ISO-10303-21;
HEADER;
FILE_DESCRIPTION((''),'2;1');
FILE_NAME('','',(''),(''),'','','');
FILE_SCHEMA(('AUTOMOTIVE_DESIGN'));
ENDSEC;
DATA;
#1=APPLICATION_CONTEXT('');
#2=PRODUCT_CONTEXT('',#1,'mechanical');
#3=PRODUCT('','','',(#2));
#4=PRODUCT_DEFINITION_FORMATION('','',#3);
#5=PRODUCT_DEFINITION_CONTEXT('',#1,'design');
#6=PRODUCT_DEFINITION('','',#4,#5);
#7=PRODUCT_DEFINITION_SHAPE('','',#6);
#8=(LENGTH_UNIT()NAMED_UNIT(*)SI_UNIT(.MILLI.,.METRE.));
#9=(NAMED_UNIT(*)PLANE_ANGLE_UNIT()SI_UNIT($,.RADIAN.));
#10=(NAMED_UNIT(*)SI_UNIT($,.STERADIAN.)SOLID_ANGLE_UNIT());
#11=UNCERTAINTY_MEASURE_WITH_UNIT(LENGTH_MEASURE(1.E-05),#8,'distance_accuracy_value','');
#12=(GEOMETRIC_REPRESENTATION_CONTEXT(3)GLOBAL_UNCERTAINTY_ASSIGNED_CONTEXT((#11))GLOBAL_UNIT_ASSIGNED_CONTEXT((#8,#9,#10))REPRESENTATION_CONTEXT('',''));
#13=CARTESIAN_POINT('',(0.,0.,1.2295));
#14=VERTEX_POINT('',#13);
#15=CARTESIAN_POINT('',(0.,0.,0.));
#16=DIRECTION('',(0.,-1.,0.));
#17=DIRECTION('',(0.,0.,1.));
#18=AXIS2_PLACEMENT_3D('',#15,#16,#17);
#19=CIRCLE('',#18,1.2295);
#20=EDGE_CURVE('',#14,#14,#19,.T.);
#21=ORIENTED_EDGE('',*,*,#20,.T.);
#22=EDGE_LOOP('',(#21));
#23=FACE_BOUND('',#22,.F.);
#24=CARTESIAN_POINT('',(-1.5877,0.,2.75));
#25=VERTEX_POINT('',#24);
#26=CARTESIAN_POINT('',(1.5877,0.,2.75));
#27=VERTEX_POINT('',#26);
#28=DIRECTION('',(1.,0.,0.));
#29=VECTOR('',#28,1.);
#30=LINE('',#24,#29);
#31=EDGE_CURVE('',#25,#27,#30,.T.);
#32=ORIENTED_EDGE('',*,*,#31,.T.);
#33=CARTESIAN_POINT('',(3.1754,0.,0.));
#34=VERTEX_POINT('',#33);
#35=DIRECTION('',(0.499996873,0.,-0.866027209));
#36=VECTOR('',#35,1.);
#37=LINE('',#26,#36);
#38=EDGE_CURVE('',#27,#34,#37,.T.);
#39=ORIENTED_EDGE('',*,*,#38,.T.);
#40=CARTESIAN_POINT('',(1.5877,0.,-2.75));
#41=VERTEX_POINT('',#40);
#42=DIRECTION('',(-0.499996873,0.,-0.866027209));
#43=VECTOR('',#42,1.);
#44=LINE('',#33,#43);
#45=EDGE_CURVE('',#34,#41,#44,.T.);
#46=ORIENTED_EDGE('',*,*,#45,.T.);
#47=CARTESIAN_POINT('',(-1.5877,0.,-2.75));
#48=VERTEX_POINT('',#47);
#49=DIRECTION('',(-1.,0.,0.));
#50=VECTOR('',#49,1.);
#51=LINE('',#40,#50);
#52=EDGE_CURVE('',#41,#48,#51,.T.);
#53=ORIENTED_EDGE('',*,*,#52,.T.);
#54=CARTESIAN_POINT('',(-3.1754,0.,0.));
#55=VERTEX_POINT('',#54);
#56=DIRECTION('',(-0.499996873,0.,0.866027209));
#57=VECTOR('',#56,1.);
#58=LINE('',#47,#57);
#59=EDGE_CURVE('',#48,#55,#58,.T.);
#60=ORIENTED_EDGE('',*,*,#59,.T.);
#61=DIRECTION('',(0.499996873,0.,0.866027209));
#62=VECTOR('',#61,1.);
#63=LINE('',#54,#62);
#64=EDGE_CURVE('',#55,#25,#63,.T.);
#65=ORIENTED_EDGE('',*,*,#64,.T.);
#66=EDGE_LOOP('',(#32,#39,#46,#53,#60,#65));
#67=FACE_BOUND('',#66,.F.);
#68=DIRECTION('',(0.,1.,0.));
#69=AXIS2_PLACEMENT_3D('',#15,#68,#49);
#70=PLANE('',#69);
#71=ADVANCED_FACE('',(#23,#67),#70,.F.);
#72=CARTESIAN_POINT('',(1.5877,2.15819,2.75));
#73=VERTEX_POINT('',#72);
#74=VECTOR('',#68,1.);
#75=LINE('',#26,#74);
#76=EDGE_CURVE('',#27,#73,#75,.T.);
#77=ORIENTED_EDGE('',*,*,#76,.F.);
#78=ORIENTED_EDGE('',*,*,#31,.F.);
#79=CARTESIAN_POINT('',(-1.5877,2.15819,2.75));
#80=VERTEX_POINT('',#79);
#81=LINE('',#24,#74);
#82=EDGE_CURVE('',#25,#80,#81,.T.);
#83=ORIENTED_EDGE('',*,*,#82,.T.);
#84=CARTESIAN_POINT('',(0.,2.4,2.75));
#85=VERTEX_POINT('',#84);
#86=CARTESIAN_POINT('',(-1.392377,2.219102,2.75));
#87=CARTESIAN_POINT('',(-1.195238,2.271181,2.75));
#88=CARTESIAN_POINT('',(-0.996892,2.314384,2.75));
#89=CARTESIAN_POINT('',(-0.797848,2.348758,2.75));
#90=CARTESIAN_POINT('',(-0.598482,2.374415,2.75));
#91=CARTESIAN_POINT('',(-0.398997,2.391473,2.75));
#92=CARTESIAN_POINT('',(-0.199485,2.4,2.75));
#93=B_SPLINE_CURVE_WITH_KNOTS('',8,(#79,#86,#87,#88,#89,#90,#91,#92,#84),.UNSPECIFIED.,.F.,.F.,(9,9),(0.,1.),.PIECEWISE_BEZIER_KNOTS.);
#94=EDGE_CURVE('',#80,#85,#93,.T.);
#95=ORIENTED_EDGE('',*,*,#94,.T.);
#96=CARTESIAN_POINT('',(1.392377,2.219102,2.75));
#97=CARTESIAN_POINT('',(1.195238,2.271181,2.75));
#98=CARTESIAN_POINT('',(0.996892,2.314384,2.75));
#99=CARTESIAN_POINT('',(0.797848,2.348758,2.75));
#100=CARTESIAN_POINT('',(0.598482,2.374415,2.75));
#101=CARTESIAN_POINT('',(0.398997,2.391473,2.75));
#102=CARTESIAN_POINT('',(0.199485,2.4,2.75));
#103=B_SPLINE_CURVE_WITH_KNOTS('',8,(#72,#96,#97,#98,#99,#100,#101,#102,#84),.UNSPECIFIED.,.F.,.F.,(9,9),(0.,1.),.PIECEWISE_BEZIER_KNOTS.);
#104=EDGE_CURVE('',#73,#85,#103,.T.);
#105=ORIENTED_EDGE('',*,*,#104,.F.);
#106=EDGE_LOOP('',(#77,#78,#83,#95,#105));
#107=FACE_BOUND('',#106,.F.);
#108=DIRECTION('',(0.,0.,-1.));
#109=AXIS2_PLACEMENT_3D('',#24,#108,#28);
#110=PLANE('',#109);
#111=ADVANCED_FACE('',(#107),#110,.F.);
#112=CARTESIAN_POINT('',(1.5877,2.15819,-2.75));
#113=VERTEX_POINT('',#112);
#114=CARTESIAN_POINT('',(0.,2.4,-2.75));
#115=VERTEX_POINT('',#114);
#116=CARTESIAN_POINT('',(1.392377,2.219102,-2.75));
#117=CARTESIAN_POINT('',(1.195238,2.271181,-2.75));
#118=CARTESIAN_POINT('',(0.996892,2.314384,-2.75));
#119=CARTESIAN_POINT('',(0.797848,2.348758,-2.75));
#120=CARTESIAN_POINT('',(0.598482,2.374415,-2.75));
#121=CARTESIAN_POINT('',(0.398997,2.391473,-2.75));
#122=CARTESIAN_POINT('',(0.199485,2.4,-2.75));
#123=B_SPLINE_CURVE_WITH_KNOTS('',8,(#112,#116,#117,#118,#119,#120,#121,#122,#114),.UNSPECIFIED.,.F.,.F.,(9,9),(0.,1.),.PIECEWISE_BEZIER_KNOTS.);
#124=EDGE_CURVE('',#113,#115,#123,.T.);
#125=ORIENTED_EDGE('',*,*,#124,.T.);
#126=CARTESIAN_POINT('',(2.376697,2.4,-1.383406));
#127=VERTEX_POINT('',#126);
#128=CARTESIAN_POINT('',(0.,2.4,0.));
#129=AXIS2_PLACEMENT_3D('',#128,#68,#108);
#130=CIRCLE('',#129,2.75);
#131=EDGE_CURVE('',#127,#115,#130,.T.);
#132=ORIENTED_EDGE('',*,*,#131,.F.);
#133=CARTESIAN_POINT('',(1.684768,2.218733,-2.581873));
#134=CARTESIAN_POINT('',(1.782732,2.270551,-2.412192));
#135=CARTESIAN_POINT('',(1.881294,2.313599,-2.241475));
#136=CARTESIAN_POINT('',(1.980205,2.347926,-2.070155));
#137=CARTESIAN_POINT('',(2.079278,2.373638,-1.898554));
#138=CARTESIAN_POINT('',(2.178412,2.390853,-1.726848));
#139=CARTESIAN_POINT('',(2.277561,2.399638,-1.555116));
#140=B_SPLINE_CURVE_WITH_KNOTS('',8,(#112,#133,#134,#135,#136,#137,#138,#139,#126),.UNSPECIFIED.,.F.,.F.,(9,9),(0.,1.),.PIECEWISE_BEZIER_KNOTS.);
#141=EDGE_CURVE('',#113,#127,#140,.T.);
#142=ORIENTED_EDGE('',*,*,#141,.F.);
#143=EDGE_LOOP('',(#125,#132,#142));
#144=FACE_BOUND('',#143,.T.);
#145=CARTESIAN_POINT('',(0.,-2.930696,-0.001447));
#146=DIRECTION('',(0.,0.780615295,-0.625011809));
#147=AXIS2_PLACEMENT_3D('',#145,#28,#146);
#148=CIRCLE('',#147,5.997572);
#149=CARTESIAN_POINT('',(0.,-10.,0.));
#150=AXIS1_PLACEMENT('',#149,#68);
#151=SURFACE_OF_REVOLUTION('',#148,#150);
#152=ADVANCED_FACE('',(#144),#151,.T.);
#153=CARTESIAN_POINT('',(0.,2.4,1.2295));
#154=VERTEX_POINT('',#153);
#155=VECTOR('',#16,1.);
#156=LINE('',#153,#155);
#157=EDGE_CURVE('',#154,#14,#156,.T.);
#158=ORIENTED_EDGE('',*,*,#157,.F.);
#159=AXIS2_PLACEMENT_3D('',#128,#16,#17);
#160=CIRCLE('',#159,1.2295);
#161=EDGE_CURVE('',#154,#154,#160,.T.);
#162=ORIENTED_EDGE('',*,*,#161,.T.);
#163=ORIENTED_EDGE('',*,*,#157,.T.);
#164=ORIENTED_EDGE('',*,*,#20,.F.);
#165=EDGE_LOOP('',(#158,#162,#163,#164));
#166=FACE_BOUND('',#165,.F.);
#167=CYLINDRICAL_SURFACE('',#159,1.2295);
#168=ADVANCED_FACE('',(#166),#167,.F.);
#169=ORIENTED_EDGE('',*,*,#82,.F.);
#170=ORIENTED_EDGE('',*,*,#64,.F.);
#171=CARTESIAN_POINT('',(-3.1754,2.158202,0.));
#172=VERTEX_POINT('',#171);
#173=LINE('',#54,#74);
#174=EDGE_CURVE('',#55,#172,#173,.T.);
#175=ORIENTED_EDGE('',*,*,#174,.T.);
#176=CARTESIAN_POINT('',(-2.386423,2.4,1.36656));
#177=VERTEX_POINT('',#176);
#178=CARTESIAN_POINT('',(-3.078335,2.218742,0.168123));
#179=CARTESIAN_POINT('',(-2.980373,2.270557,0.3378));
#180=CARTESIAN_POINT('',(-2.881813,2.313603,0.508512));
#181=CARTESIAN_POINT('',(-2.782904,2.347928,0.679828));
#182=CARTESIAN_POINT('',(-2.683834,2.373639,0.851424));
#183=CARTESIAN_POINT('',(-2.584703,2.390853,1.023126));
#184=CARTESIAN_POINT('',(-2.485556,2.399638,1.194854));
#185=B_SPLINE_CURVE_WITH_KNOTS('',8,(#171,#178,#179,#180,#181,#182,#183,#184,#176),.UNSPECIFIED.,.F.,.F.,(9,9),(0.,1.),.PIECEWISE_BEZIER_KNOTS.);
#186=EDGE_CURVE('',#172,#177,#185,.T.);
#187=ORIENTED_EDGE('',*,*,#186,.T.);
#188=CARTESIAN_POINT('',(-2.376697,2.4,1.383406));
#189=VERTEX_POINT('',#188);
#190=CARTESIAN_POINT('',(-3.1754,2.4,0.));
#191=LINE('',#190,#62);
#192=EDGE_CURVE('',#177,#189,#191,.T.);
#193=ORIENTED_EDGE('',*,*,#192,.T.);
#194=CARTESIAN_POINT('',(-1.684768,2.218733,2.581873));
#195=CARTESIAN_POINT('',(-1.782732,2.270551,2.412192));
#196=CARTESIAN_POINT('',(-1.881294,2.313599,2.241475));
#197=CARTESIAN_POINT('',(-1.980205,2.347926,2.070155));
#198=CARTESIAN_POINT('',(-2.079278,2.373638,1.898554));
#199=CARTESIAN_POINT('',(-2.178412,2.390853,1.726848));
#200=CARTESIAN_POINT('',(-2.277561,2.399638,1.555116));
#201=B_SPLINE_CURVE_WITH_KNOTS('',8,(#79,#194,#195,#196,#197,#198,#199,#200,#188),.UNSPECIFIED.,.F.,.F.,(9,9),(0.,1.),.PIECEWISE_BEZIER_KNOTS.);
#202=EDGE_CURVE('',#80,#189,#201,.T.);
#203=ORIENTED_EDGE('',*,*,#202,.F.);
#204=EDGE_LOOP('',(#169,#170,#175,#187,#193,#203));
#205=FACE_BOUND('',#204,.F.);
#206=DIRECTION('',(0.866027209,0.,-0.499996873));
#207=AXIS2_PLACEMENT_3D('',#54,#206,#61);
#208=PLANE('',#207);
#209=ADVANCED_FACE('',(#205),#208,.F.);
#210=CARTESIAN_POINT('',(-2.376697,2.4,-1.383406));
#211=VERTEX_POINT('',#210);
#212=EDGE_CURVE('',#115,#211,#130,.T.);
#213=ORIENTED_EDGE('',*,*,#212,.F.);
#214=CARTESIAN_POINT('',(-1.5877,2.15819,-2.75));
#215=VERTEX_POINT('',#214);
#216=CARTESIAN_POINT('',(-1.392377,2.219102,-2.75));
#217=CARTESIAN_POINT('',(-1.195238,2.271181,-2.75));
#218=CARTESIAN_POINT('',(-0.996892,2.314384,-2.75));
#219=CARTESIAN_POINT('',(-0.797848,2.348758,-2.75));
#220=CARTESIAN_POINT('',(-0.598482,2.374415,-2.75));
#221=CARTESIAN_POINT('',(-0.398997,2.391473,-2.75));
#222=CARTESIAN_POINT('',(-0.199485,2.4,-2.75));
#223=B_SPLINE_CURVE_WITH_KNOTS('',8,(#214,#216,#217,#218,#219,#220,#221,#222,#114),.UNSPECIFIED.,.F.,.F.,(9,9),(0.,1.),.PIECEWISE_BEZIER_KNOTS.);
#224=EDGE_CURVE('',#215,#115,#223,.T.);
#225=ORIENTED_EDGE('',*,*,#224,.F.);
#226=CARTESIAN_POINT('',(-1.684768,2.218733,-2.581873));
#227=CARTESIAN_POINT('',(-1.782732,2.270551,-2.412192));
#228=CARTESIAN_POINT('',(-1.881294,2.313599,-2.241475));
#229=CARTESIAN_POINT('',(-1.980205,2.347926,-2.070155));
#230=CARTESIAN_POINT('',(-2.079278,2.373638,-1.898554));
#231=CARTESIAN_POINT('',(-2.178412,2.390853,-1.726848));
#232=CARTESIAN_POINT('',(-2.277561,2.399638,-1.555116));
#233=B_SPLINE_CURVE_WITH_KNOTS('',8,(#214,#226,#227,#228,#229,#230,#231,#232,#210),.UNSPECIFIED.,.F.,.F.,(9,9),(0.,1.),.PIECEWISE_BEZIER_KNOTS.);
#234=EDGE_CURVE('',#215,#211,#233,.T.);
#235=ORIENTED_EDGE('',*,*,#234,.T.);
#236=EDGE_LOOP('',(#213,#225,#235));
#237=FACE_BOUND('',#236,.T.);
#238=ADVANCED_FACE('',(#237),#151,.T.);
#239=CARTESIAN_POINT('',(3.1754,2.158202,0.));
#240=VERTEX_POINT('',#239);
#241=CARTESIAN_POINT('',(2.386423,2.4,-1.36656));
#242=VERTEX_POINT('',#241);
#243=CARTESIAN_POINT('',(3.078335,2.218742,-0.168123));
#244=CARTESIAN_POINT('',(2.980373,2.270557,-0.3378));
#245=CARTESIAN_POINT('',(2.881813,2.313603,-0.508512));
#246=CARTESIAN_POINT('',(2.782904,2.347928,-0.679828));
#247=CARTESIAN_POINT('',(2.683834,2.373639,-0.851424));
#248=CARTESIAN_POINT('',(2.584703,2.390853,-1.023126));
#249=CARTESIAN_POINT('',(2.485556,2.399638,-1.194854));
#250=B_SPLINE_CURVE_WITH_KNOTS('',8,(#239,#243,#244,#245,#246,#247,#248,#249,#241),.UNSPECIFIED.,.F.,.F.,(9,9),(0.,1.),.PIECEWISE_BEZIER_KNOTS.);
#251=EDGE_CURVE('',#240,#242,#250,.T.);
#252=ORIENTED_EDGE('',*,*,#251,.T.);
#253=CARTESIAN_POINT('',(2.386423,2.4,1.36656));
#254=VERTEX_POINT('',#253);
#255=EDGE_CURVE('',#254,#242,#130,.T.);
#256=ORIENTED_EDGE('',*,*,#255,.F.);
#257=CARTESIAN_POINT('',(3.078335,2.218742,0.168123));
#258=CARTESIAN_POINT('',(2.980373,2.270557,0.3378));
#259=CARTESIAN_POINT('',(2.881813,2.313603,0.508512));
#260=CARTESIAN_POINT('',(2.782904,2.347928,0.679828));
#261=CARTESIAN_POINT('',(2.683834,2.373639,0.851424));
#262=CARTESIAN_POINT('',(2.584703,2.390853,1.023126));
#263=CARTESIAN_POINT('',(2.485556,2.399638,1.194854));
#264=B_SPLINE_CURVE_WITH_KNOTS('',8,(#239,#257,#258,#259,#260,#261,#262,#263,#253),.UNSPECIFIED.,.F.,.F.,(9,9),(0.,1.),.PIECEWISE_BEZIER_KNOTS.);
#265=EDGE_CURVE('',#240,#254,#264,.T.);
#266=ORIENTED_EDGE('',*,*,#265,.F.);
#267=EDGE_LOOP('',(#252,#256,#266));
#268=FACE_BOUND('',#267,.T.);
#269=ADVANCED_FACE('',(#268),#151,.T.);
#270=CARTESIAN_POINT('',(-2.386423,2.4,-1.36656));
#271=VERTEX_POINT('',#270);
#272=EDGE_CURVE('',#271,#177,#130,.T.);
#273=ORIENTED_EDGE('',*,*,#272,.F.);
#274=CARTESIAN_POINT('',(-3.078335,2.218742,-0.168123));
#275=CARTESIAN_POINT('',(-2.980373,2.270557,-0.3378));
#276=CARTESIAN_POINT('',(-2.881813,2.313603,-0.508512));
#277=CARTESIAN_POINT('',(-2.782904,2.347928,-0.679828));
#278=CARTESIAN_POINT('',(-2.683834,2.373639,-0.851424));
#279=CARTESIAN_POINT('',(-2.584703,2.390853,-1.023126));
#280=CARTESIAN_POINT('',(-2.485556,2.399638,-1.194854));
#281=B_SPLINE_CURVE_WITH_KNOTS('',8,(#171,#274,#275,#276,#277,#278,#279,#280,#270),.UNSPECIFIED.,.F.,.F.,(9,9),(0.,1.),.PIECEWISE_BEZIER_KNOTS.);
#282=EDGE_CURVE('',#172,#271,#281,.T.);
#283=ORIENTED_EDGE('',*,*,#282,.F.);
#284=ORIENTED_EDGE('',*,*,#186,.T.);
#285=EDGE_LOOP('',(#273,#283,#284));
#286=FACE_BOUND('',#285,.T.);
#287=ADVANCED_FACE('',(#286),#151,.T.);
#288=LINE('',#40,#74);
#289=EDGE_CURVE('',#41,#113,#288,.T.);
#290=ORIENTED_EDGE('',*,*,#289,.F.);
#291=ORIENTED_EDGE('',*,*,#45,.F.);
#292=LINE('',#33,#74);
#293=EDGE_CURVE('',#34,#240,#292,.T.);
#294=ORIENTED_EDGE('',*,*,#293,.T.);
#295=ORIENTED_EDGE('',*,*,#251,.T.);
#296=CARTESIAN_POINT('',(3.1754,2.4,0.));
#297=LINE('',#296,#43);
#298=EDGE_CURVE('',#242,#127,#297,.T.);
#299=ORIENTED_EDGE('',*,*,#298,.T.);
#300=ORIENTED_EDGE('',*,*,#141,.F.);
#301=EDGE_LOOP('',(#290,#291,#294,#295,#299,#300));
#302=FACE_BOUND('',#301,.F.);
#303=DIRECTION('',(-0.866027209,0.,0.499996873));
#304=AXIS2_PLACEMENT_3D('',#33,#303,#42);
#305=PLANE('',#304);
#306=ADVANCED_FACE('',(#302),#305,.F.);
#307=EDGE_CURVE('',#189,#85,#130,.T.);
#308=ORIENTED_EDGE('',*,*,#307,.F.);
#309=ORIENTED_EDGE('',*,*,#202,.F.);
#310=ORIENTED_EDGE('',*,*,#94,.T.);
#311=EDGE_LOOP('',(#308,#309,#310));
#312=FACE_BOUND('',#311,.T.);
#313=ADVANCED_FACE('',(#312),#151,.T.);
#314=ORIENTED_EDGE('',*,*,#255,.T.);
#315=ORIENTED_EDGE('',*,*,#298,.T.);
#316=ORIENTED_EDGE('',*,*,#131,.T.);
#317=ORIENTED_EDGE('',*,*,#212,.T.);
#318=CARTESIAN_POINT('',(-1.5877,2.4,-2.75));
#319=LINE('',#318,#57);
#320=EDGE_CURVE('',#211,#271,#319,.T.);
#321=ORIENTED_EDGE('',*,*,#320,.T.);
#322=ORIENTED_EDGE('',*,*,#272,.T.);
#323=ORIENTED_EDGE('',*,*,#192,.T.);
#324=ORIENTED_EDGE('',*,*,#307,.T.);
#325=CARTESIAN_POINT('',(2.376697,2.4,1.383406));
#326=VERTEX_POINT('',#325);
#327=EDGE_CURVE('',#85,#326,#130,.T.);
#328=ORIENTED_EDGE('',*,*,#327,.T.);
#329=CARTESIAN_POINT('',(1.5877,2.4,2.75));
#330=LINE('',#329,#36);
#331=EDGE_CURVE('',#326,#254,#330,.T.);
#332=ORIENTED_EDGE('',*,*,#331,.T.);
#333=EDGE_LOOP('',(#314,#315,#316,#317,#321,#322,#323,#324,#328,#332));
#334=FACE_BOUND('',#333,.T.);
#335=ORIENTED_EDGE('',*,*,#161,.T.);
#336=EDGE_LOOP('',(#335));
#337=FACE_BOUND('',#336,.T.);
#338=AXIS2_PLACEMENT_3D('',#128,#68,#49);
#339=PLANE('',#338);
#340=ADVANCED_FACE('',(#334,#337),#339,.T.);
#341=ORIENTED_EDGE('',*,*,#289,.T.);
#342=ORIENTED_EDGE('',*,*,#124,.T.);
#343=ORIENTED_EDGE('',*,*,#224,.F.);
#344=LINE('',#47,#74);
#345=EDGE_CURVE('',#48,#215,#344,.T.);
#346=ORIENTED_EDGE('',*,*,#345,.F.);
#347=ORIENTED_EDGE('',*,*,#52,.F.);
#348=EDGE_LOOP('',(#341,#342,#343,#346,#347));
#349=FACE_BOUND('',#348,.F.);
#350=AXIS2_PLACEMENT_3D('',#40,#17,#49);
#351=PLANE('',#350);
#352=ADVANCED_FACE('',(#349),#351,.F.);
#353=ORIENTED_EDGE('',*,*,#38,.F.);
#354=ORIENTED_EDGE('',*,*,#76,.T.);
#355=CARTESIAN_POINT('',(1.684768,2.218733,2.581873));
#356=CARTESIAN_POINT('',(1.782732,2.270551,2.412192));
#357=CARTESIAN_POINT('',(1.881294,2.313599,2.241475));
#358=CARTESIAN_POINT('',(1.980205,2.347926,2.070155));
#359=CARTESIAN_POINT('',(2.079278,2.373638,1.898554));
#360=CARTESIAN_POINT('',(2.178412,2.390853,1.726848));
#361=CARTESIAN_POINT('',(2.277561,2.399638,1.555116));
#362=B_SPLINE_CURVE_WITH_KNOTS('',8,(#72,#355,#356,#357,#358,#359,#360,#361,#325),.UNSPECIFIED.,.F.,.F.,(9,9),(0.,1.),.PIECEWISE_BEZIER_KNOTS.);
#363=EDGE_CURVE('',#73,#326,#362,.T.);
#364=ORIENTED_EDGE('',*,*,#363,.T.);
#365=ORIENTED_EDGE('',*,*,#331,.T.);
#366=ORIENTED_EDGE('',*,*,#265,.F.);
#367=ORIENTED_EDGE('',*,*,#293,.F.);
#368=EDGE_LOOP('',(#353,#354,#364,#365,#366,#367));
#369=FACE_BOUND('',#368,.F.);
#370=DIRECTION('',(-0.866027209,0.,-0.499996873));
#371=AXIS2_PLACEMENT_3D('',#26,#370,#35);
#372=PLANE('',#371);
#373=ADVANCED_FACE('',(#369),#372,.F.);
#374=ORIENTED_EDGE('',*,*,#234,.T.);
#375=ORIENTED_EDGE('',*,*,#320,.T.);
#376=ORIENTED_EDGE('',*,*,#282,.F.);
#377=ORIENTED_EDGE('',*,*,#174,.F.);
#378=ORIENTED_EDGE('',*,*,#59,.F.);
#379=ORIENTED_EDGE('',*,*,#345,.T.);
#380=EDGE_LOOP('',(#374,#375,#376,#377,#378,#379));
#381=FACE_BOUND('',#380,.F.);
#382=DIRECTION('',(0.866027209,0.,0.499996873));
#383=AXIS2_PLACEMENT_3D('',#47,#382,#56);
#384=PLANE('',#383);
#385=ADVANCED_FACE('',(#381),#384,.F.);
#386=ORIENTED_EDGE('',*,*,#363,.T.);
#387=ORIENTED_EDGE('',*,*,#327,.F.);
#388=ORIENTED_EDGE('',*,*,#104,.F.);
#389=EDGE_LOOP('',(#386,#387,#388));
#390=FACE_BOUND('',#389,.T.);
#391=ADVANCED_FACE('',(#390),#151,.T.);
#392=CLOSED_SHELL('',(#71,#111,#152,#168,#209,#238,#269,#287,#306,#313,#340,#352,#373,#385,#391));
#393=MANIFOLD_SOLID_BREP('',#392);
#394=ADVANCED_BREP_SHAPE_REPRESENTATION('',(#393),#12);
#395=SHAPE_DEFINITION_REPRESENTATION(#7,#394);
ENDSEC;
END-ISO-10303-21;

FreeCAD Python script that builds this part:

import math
import FreeCAD as App
import Part
import Sketcher
Q = App.Units.Quantity


def add_polygon(sketch, points):
    """Adds a closed chain of lines whose ends are joined by coincident constraints."""
    first, n = sketch.GeometryCount, len(points)
    for a, b in zip(points, points[1:] + points[:1]):
        sketch.addGeometry(Part.LineSegment(App.Vector(*a, 0), App.Vector(*b, 0)), False)
    for i in range(n):
        sketch.addConstraint(Sketcher.Constraint("Coincident", first + i, 2, first + (i + 1) % n, 1))

doc = App.newDocument("Part")
body = doc.addObject("PartDesign::Body", "Body")

# Sketch on XZ plane
sketch1 = doc.addObject("Sketcher::SketchObject", "Sketch")
body.addObject(sketch1)
sketch1.AttachmentSupport = (doc.XZ_Plane, [""])
sketch1.MapMode = "FlatFace"
add_polygon(sketch1, [(-1.5877, -2.75), (-3.1754, 0), (-1.5877, 2.75), (1.5877, 2.75), (3.1754, 0), (1.5877, -2.75)])  # lines 0-5
sketch1.addConstraint([
    Sketcher.Constraint("Horizontal", 2),
    Sketcher.Constraint("Horizontal", 5),
    Sketcher.Constraint("Symmetric", 0, 2, 3, 2, -1, 1),
    Sketcher.Constraint("Symmetric", 1, 2, 4, 2, -1, 1),
    Sketcher.Constraint("PointOnObject", 0, 2, -1),
    Sketcher.Constraint("Parallel", 0, 3),
    Sketcher.Constraint("Vertical", 2, 2, 4, 2),
    Sketcher.Constraint("DistanceY", 4, 2, 2, 2, Q("5.5 mm")),
    Sketcher.Constraint("Angle", 0, Q("119.9998 deg")),
    Sketcher.Constraint("DistanceX", 2, 1, 2, 2, Q("3.1754 mm")),
])
pad1 = doc.addObject("PartDesign::Pad", "Pad")
body.addObject(pad1)
pad1.Profile = sketch1
pad1.Length = 2.4
pad1.Reversed = True

# Sketch on XZ plane
sketch2 = doc.addObject("Sketcher::SketchObject", "Sketch001")
body.addObject(sketch2)
sketch2.AttachmentSupport = (doc.XZ_Plane, [""])
sketch2.MapMode = "FlatFace"
sketch2.AttachmentOffset = App.Placement(App.Vector(0, 0, -2.4), App.Rotation())
sketch2.addGeometry(Part.Circle(App.Vector(0, 0, 0), App.Vector(0, 0, 1), 1.2295), False)
sketch2.addConstraint([
    Sketcher.Constraint("Coincident", 0, 3, -1, 1),
    Sketcher.Constraint("Diameter", 0, Q("2.459 mm")),
])
doc.recompute()
hole = doc.addObject("PartDesign::Hole", "Hole")
body.addObject(hole)
hole.Profile = sketch2
hole.ThreadType = "None"
hole.Diameter = 2.459
hole.DepthType = "ThroughAll"
hole.Reversed = True

# Sketch on YZ plane
sketch3 = doc.addObject("Sketcher::SketchObject", "Sketch002")
body.addObject(sketch3)
sketch3.AttachmentSupport = (doc.YZ_Plane, [""])
sketch3.MapMode = "FlatFace"
sketch3.addGeometry([
    Part.ArcOfCircle(Part.Circle(App.Vector(-2.930696, -0.001447, 0), App.Vector(0, 0, 1), 5.997572), math.radians(-38.683054), math.radians(-27.276024)),
    Part.LineSegment(App.Vector(1.7511, -3.75, 0), App.Vector(2.4, -3.75, 0)),
    Part.LineSegment(App.Vector(2.4, -3.75, 0), App.Vector(2.4, -2.75, 0)),
], False)
sketch3.addConstraint([
    Sketcher.Constraint("Coincident", 0, 1, 1, 1),
    Sketcher.Constraint("Coincident", 1, 2, 2, 1),
    Sketcher.Constraint("Coincident", 2, 2, 0, 2),
    Sketcher.Constraint("Horizontal", 1),
    Sketcher.Constraint("Vertical", 2),
    Sketcher.Constraint("DistanceY", 2, 1, 2, 2, Q("1 mm")),
    Sketcher.Constraint("DistanceY", 2, 2, -1, 1, Q("2.75 mm")),
    Sketcher.Constraint("DistanceX", -1, 1, 1, 2, Q("2.4 mm")),
    Sketcher.Constraint("Radius", 0, Q("5.9976 mm")),
    Sketcher.Constraint("DistanceX", 1, 1, 1, 2, Q("0.649 mm")),
])
groove = doc.addObject("PartDesign::Groove", "Groove")
body.addObject(groove)
groove.Profile = sketch3
groove.ReferenceAxis = (sketch3, ["H_Axis"])
groove.Angle = 360

doc.recompute()
